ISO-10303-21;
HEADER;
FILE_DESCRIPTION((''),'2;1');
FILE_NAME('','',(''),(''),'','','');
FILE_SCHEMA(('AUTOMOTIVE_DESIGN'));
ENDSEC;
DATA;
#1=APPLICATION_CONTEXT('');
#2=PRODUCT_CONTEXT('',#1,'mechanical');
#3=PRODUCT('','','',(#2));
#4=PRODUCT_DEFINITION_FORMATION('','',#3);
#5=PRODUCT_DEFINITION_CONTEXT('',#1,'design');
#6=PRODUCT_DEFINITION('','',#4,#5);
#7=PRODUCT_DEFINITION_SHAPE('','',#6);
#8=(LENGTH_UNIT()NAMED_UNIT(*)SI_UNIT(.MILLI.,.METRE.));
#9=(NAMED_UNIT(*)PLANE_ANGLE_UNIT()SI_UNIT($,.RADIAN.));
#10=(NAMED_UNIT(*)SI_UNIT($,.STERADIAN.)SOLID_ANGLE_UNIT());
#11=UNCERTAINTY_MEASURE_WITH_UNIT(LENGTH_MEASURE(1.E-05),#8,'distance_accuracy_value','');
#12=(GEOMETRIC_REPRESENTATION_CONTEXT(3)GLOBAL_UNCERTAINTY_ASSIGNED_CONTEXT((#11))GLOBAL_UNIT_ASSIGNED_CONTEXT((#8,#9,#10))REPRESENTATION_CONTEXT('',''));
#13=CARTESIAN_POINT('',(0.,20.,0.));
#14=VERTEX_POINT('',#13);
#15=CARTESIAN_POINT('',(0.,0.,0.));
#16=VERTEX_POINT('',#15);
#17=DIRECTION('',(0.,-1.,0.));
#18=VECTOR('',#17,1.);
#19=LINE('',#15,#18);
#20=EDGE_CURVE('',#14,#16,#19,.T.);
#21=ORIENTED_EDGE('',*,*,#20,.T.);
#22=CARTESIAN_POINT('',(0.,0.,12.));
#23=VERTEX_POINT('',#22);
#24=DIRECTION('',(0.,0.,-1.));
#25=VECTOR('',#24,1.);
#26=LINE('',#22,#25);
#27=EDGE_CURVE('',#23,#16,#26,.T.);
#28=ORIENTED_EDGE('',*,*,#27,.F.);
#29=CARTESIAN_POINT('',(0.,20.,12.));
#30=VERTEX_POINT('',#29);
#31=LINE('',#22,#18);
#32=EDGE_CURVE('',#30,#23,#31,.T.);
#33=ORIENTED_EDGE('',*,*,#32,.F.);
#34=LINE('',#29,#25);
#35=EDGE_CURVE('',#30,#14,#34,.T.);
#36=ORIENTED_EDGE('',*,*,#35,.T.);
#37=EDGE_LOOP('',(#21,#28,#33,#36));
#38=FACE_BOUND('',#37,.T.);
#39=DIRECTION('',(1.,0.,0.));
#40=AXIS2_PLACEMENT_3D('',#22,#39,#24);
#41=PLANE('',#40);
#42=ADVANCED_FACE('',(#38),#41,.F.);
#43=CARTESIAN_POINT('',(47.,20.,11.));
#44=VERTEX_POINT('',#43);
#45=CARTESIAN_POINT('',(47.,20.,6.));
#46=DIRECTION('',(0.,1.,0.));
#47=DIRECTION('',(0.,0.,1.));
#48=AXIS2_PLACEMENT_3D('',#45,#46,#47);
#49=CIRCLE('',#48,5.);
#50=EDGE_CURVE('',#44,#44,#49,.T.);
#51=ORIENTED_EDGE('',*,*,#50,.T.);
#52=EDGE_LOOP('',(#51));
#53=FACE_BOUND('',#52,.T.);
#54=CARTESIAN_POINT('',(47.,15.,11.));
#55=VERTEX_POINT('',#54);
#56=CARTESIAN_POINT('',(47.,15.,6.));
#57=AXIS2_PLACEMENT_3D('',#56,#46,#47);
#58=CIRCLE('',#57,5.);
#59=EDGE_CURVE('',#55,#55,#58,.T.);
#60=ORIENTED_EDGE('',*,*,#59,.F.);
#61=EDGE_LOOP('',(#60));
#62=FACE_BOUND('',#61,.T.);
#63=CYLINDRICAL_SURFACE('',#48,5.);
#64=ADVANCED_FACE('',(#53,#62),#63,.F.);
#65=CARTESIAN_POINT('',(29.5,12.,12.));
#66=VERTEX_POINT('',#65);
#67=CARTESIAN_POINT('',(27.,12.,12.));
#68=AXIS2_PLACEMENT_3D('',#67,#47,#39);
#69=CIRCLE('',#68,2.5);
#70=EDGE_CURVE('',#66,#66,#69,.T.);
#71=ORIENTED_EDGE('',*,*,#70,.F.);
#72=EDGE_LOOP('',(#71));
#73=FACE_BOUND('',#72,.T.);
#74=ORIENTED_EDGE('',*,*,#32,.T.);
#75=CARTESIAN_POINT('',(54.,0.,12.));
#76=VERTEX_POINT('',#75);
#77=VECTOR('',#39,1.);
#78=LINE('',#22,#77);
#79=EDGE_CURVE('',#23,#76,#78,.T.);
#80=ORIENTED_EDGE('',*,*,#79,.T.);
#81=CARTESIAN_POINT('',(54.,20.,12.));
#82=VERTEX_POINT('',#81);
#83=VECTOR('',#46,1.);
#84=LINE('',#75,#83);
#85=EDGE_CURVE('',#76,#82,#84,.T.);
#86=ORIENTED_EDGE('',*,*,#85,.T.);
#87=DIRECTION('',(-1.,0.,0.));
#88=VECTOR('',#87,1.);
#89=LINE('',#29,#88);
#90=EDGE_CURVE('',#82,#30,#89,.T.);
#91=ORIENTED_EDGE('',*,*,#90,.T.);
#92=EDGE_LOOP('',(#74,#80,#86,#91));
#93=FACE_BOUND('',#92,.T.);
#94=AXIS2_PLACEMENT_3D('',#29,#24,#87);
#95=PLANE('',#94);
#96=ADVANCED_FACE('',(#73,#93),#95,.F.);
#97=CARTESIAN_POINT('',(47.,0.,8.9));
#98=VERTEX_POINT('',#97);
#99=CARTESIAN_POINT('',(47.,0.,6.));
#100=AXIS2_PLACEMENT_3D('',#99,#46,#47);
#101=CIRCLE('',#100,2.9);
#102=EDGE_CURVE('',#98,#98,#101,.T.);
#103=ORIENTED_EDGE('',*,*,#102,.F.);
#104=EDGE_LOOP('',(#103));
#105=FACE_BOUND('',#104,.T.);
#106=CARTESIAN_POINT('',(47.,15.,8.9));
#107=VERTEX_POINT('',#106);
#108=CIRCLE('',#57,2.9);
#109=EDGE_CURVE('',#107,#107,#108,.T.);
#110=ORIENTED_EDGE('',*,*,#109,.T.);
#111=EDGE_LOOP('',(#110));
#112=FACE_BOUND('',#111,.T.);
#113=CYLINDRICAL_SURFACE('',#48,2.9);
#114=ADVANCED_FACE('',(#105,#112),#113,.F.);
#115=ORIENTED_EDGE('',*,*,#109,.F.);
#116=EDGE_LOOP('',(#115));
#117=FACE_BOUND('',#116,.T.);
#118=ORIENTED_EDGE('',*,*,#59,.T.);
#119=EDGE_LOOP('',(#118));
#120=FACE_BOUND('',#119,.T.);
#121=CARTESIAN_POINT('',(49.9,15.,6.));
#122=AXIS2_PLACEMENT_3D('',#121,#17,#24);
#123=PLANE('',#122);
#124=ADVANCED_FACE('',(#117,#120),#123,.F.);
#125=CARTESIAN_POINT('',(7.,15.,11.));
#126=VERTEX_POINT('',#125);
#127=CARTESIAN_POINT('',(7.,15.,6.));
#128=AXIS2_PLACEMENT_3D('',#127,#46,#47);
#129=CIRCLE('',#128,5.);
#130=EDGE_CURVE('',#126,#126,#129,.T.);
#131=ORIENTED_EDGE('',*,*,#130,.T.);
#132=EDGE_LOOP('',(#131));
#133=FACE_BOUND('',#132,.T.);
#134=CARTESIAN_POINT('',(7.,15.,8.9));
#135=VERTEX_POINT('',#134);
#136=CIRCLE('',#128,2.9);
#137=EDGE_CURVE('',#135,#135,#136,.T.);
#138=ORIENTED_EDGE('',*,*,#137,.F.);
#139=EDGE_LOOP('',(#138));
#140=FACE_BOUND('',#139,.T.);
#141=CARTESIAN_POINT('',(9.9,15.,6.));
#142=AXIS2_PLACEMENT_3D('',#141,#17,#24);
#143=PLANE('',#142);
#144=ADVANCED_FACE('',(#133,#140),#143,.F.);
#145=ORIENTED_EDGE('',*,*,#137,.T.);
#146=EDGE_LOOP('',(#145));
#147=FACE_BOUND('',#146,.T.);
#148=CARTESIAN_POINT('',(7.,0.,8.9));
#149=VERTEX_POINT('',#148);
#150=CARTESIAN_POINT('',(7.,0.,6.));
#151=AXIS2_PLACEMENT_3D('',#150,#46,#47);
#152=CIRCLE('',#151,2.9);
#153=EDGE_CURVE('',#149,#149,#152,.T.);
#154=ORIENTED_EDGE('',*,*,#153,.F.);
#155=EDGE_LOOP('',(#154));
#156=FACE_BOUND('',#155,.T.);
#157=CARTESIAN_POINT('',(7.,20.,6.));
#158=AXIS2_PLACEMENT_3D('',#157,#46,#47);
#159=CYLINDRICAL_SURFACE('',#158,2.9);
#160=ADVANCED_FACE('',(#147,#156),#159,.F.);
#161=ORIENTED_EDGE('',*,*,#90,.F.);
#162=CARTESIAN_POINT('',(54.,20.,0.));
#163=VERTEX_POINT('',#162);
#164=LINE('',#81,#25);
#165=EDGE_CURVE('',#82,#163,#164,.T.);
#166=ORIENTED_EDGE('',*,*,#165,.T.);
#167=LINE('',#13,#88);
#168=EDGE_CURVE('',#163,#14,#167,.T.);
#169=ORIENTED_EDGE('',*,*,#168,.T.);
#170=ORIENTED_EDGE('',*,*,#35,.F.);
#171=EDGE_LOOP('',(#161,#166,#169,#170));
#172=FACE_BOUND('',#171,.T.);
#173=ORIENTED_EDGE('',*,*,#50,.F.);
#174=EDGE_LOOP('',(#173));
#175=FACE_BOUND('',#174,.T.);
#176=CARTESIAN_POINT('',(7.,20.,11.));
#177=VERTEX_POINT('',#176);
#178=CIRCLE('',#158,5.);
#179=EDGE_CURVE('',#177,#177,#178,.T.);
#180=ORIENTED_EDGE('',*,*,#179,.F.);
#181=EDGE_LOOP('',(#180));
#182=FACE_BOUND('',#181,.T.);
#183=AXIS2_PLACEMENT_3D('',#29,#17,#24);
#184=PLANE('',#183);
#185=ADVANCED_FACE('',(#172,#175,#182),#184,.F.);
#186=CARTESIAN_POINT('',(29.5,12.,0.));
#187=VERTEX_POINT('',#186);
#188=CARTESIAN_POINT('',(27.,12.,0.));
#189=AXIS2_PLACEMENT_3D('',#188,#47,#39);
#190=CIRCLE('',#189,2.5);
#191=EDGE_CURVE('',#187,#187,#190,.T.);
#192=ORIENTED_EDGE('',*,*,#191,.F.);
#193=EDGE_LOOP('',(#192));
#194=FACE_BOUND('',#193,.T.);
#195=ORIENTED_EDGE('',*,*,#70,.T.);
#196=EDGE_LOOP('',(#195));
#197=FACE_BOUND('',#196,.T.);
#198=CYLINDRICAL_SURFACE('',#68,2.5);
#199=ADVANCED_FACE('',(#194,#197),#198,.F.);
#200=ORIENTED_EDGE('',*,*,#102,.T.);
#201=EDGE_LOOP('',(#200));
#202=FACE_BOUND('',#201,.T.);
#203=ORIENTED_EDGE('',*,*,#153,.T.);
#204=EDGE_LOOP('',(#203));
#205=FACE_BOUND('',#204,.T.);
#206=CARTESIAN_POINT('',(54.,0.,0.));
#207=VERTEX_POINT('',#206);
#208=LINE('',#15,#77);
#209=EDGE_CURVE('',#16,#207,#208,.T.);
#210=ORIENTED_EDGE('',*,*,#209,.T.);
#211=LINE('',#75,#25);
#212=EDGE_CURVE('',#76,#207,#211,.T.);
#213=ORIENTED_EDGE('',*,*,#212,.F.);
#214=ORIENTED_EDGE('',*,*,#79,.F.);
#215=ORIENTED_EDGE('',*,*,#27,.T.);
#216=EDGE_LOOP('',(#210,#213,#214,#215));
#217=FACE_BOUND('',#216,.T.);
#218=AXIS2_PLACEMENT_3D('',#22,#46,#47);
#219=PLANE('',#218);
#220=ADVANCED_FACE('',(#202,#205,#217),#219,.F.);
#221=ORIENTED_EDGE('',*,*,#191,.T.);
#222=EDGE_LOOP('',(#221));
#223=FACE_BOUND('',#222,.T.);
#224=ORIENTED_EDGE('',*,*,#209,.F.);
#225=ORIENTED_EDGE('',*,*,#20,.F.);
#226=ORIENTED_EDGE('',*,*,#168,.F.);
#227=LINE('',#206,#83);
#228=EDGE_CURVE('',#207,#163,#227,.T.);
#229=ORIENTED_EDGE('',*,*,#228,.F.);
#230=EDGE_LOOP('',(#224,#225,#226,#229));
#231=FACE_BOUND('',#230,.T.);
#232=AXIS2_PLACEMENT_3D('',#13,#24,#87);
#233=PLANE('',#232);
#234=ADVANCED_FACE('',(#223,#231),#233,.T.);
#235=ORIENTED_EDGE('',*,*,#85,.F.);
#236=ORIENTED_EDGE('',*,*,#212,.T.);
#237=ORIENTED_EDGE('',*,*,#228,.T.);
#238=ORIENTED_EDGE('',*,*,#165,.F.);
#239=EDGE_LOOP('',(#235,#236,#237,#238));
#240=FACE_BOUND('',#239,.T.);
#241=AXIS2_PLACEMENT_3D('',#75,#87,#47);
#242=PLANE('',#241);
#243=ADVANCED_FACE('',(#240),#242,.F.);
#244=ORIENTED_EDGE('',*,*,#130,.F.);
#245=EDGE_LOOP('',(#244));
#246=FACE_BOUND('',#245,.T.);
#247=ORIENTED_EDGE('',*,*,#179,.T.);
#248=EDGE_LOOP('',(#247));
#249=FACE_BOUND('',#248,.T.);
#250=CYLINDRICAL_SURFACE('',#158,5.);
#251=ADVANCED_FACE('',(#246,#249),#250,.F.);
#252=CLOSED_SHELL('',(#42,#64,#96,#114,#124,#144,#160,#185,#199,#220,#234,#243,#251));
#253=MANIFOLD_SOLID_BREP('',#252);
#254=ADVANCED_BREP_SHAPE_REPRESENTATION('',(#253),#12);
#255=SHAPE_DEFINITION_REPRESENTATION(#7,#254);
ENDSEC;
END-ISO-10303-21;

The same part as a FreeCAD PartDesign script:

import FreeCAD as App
import Part
import Sketcher


def add_polygon(sketch, points):
    """Adds a closed chain of lines whose ends are joined by coincident constraints."""
    first, n = sketch.GeometryCount, len(points)
    for a, b in zip(points, points[1:] + points[:1]):
        sketch.addGeometry(Part.LineSegment(App.Vector(*a, 0), App.Vector(*b, 0)), False)
    for i in range(n):
        sketch.addConstraint(Sketcher.Constraint("Coincident", first + i, 2, first + (i + 1) % n, 1))

doc = App.newDocument("Part")
body = doc.addObject("PartDesign::Body", "Body")

sketch1 = body.newObject("Sketcher::SketchObject", "Sketch")
sketch1.AttachmentSupport = (doc.getObject("XY_Plane"), [""])
sketch1.MapMode = "FlatFace"
add_polygon(sketch1, [(0, 20), (0, 0), (54, 0), (54, 20)])
sketch1.addConstraint([
    Sketcher.Constraint("Vertical", 0),
    Sketcher.Constraint("Horizontal", 1),
    Sketcher.Constraint("Vertical", 2),
    Sketcher.Constraint("Horizontal", 3),
    Sketcher.Constraint("Coincident", 0, 2, -1, 1),
    Sketcher.Constraint("DistanceX", 1, 1, 1, 2, 54.0),
    Sketcher.Constraint("DistanceY", 0, 2, 0, 1, 20.0),
])
pad1 = body.newObject("PartDesign::Pad", "Pad")
pad1.Profile = sketch1
pad1.Length = 12

sketch2 = body.newObject("Sketcher::SketchObject", "Sketch001")
sketch2.AttachmentSupport = (doc.getObject("XY_Plane"), [""])
sketch2.MapMode = "FlatFace"
sketch2.AttachmentOffset = App.Placement(App.Vector(0, 0, 12), App.Rotation())
sketch2.addGeometry(Part.Circle(App.Vector(27, 12, 0), App.Vector(0, 0, 1), 2.5), False)
sketch2.addConstraint([
    Sketcher.Constraint("Diameter", 0, 5.0),
    Sketcher.Constraint("DistanceX", -1, 1, 0, 3, 27.0),
    Sketcher.Constraint("DistanceY", -1, 1, 0, 3, 12.0),
])
doc.recompute()
hole = body.newObject("PartDesign::Hole", "Hole")
hole.Profile = sketch2
hole.ThreadType = "None"
hole.Diameter = 5
hole.DepthType = "ThroughAll"

sketch3 = body.newObject("Sketcher::SketchObject", "Sketch002")
sketch3.AttachmentSupport = (doc.getObject("XZ_Plane"), [""])
sketch3.MapMode = "FlatFace"
sketch3.AttachmentOffset = App.Placement(App.Vector(0, 0, -20), App.Rotation())
sketch3.addGeometry([
    Part.Circle(App.Vector(47, 6, 0), App.Vector(0, 0, 1), 2.9),
    Part.Circle(App.Vector(7, 6, 0), App.Vector(0, 0, 1), 2.9),
], False)
sketch3.addConstraint([
    Sketcher.Constraint("Equal", 0, 1),
    Sketcher.Constraint("Horizontal", 0, 3, 1, 3),
    Sketcher.Constraint("Diameter", 0, 5.8),
    Sketcher.Constraint("DistanceX", -1, 1, 0, 3, 47.0),
    Sketcher.Constraint("DistanceY", -1, 1, 0, 3, 6.0),
    Sketcher.Constraint("DistanceX", -1, 1, 1, 3, 7.0),
])
doc.recompute()
hole2 = body.newObject("PartDesign::Hole", "Hole001")
hole2.Profile = sketch3
hole2.ThreadType = "None"
hole2.Diameter = 5.8
hole2.DepthType = "ThroughAll"
hole2.HoleCutType = "Counterbore"
hole2.HoleCutDiameter = 10
hole2.HoleCutDepth = 5
hole2.Reversed = True

doc.recompute()
